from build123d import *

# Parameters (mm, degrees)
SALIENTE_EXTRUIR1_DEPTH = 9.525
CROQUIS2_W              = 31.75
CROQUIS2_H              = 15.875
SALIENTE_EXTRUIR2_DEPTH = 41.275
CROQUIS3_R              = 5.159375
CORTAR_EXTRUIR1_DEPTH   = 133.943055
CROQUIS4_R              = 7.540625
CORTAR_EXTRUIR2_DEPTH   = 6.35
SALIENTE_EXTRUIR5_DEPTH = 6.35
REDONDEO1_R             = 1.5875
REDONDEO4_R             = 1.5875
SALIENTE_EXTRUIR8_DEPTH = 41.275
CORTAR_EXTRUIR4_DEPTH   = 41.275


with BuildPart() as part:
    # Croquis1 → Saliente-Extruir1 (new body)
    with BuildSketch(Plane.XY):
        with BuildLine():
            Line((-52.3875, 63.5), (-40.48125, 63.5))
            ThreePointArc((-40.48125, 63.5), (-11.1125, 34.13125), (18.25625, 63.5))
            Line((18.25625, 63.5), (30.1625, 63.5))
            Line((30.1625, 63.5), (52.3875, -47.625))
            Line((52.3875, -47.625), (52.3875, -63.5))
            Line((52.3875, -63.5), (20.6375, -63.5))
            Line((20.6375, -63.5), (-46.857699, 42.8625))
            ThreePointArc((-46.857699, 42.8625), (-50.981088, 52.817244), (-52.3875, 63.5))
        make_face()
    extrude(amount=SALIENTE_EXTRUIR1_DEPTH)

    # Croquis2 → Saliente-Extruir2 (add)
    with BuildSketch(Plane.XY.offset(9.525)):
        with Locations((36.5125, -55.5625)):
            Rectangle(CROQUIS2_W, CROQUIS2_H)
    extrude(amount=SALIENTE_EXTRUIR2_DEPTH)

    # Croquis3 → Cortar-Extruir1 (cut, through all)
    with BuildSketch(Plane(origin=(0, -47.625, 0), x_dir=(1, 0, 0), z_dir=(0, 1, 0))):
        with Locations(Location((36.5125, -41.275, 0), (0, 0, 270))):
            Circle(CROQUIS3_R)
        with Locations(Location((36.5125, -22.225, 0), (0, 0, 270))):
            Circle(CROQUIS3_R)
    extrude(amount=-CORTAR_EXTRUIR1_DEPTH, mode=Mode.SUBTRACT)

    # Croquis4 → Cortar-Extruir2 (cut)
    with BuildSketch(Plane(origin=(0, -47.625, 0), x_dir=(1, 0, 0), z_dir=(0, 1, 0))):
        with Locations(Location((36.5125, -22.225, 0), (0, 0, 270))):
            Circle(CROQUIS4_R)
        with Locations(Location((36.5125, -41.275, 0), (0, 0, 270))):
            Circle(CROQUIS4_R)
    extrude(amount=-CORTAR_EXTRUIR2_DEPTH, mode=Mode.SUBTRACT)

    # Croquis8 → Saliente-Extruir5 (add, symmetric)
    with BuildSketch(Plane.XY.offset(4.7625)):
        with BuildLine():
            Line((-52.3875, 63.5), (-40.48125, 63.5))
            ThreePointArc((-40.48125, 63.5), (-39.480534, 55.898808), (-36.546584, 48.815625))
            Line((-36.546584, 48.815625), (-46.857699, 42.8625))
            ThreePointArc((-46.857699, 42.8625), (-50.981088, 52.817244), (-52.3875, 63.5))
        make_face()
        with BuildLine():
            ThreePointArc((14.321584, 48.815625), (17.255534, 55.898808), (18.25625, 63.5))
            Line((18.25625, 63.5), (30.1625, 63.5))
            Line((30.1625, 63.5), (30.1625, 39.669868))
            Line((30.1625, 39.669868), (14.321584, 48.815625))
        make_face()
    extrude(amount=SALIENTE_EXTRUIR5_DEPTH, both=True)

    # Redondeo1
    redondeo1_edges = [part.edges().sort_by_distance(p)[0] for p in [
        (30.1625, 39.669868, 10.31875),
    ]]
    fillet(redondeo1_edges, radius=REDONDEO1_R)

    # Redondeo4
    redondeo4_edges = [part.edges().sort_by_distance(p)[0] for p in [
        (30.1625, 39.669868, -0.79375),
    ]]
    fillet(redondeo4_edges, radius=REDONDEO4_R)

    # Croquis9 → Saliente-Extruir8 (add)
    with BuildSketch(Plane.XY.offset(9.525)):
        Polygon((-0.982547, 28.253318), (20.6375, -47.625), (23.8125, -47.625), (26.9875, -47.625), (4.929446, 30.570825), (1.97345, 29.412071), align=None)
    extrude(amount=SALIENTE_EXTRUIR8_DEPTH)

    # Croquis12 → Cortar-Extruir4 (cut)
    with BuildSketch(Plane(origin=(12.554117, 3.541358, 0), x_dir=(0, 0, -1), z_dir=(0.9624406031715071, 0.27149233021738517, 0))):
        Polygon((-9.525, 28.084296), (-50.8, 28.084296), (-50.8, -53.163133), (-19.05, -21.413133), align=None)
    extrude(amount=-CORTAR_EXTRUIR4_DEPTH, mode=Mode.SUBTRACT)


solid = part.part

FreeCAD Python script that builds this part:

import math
import FreeCAD as App
import Part
import Sketcher
from FreeCAD import Vector
Q = App.Units.Quantity


def edges_at(feature, points):
    """Names of the edges that pass closest to the given points."""
    edges = feature.Shape.Edges
    near = lambda p: min(range(len(edges)), key=lambda i: edges[i].distToShape(Part.Vertex(*p))[0])
    return sorted({f"Edge{near(p) + 1}" for p in points})


def add_polygon(sketch, points):
    """Adds a closed chain of lines whose ends are joined by coincident constraints."""
    first, n = sketch.GeometryCount, len(points)
    for a, b in zip(points, points[1:] + points[:1]):
        sketch.addGeometry(Part.LineSegment(App.Vector(*a, 0), App.Vector(*b, 0)), False)
    for i in range(n):
        sketch.addConstraint(Sketcher.Constraint("Coincident", first + i, 2, first + (i + 1) % n, 1))

doc = App.newDocument("Part")
params = doc.addObject("Spreadsheet::Sheet", "Params")
for row, (alias, value) in enumerate([
    ("sketch1_radius", "1.15625 in"),
    ("sketch1_width", "1.25 in"),
    ("sketch1_width2", "0.46875 in"),
    ("sketch1_height", "0.625 in"),
    ("pad1_length", "0.375 in"),
    ("sketch2_width", "1.25 in"),
    ("sketch2_height", "0.625 in"),
    ("pad2_length", "1.625 in"),
    ("sketch3_diameter", "0.40625 in"),
    ("sketch4_diameter", "0.59375 in"),
    ("pocket2_length", "0.25 in"),
    ("sketch5_width", "0.46875 in"),
    ("sketch5_length", "0.46875 in"),
    ("pad3_length", "0.5 in"),
    ("fillet_radius", "0.0625 in"),
    ("fillet2_radius", "0.0625 in"),
    ("sketch6_width", "0.25 in"),
    ("sketch6_length", "0.125 in"),
    ("pad4_length", "1.625 in"),
    ("sketch7_width", "1.625 in"),
    ("pocket3_length", "1.625 in"),
], start=1):
    params.set(f"A{row}", alias)
    params.set(f"B{row}", "=" + value)
    params.setAlias(f"B{row}", alias)

body = doc.addObject("PartDesign::Body", "Body")

sketch1 = doc.addObject("Sketcher::SketchObject", "Sketch")
body.addObject(sketch1)
sketch1.AttachmentSupport = (doc.XY_Plane, [""])
sketch1.MapMode = "FlatFace"
sketch1.addGeometry(Part.LineSegment(Vector(-40, 64, 0), Vector(-52, 64, 0)), False)
sketch1.addGeometry(Part.ArcOfCircle(Part.Circle(Vector(-11, 64, 0), Vector(0, 0, 1), 41), math.radians(-180), math.radians(-150)), False)
sketch1.addGeometry(Part.LineSegment(Vector(-47, 43, 0), Vector(21, -64, 0)), False)
sketch1.addGeometry(Part.LineSegment(Vector(21, -64, 0), Vector(52, -64, 0)), False)
sketch1.addGeometry(Part.LineSegment(Vector(52, -64, 0), Vector(52, -48, 0)), False)
sketch1.addGeometry(Part.LineSegment(Vector(52, -48, 0), Vector(30, 64, 0)), False)
sketch1.addGeometry(Part.LineSegment(Vector(30, 64, 0), Vector(18, 64, 0)), False)
sketch1.addGeometry(Part.ArcOfCircle(Part.Circle(Vector(-11, 64, 0), Vector(0, 0, 1), 29), math.radians(180), math.radians(360)), False)
sketch1.addConstraint(Sketcher.Constraint("Coincident", 0, 2, 1, 1))
sketch1.addConstraint(Sketcher.Constraint("Coincident", 1, 2, 2, 1))
sketch1.addConstraint(Sketcher.Constraint("Coincident", 2, 2, 3, 1))
sketch1.addConstraint(Sketcher.Constraint("Coincident", 3, 2, 4, 1))
sketch1.addConstraint(Sketcher.Constraint("Coincident", 4, 2, 5, 1))
sketch1.addConstraint(Sketcher.Constraint("Coincident", 5, 2, 6, 1))
sketch1.addConstraint(Sketcher.Constraint("Coincident", 6, 2, 7, 2))
sketch1.addConstraint(Sketcher.Constraint("Coincident", 7, 1, 0, 1))
sketch1.addConstraint(Sketcher.Constraint("Horizontal", 0))
sketch1.addConstraint(Sketcher.Constraint("Horizontal", 3))
sketch1.addConstraint(Sketcher.Constraint("Vertical", 4))
sketch1.addConstraint(Sketcher.Constraint("Horizontal", 6))
sketch1.addConstraint(Sketcher.Constraint("Symmetric", 0, 2, 3, 2, -1, 1))
sketch1.addConstraint(Sketcher.Constraint("Horizontal", 7, 3, 0, 2))
sketch1.addConstraint(Sketcher.Constraint("Horizontal", 0, 2, 5, 2))
sketch1.addConstraint(Sketcher.Constraint("Equal", 0, 6))
sketch1.addConstraint(Sketcher.Constraint("Radius", 7, Q("1.15625 in")))
sketch1.addConstraint(Sketcher.Constraint("DistanceY", 2, 2, 1, 3, Q("5.0000002 in")))
sketch1.addConstraint(Sketcher.Constraint("DistanceY", 2, 2, 7, 3, Q("5 in")))
sketch1.addConstraint(Sketcher.Constraint("DistanceX", 3, 1, 3, 2, Q("1.25 in")))
sketch1.addConstraint(Sketcher.Constraint("DistanceX", 7, 3, 3, 2, Q("2.5 in")))
sketch1.addConstraint(Sketcher.Constraint("DistanceX", 0, 2, 0, 1, Q("0.46875 in")))
sketch1.addConstraint(Sketcher.Constraint("DistanceY", 4, 1, 4, 2, Q("0.625 in")))
sketch1.addConstraint(Sketcher.Constraint("DistanceY", -1, 1, 1, 2, Q("1.6875 in")))
sketch1.addConstraint(Sketcher.Constraint("Radius", 1, 41.27502))
sketch1.setExpression("Constraints[16]", "Params.sketch1_radius")
sketch1.setExpression("Constraints[19]", "Params.sketch1_width")
sketch1.setExpression("Constraints[21]", "Params.sketch1_width2")
sketch1.setExpression("Constraints[22]", "Params.sketch1_height")
pad1 = doc.addObject("PartDesign::Pad", "Pad")
body.addObject(pad1)
pad1.Profile = sketch1
pad1.setExpression("Length", "Params.pad1_length")

sketch2 = doc.addObject("Sketcher::SketchObject", "Sketch001")
body.addObject(sketch2)
sketch2.AttachmentSupport = (doc.XY_Plane, [""])
sketch2.MapMode = "FlatFace"
sketch2.AttachmentOffset = App.Placement(Vector(0, 0, 0.375 * 25.4), App.Rotation())
add_polygon(sketch2, [(21, -48), (21, -64), (52, -64), (52, -48)])
sketch2.addConstraint(Sketcher.Constraint("Vertical", 0))
sketch2.addConstraint(Sketcher.Constraint("Horizontal", 1))
sketch2.addConstraint(Sketcher.Constraint("Vertical", 2))
sketch2.addConstraint(Sketcher.Constraint("Horizontal", 3))
sketch2.addConstraint(Sketcher.Constraint("DistanceX", 1, 1, 1, 2, Q("1.25 in")))
sketch2.addConstraint(Sketcher.Constraint("DistanceY", 0, 2, -1, 1, Q("2.5 in")))
sketch2.addConstraint(Sketcher.Constraint("DistanceY", 0, 2, 0, 1, Q("0.625 in")))
sketch2.addConstraint(Sketcher.Constraint("DistanceX", -1, 1, 0, 2, Q("0.8125 in")))
sketch2.setExpression("Constraints[8]", "Params.sketch2_width")
sketch2.setExpression("Constraints[10]", "Params.sketch2_height")
pad2 = doc.addObject("PartDesign::Pad", "Pad001")
body.addObject(pad2)
pad2.Profile = sketch2
pad2.setExpression("Length", "Params.pad2_length")

sketch3 = doc.addObject("Sketcher::SketchObject", "Sketch002")
body.addObject(sketch3)
sketch3.AttachmentSupport = (doc.XZ_Plane, [""])
sketch3.MapMode = "FlatFace"
sketch3.AttachmentOffset = App.Placement(Vector(0, 0, 1.875 * 25.4), App.Rotation())
sketch3.addGeometry(Part.Circle(Vector(37, 41, 0), Vector(0, 0, 1), 5), False)
sketch3.addGeometry(Part.Circle(Vector(37, 22, 0), Vector(0, 0, 1), 5), False)
sketch3.addConstraint(Sketcher.Constraint("Equal", 0, 1))
sketch3.addConstraint(Sketcher.Constraint("Vertical", 0, 3, 1, 3))
sketch3.addConstraint(Sketcher.Constraint("Diameter", 0, Q("0.40625 in")))
sketch3.addConstraint(Sketcher.Constraint("DistanceY", 1, 3, 0, 3, Q("0.75 in")))
sketch3.addConstraint(Sketcher.Constraint("DistanceX", -1, 1, 0, 3, Q("1.4375 in")))
sketch3.addConstraint(Sketcher.Constraint("DistanceY", -1, 1, 0, 3, Q("1.625 in")))
sketch3.setExpression("Constraints[2]", "Params.sketch3_diameter")
pocket1 = doc.addObject("PartDesign::Pocket", "Pocket")
body.addObject(pocket1)
pocket1.Profile = sketch3
pocket1.Type = "ThroughAll"
pocket1.Reversed = True

sketch4 = doc.addObject("Sketcher::SketchObject", "Sketch003")
body.addObject(sketch4)
sketch4.AttachmentSupport = (doc.XZ_Plane, [""])
sketch4.MapMode = "FlatFace"
sketch4.AttachmentOffset = App.Placement(Vector(0, 0, 1.875 * 25.4), App.Rotation())
sketch4.addGeometry(Part.Circle(Vector(37, 22, 0), Vector(0, 0, 1), 8), False)
sketch4.addGeometry(Part.Circle(Vector(37, 41, 0), Vector(0, 0, 1), 8), False)
sketch4.addConstraint(Sketcher.Constraint("Equal", 0, 1))
sketch4.addConstraint(Sketcher.Constraint("Vertical", 0, 3, 1, 3))
sketch4.addConstraint(Sketcher.Constraint("Diameter", 0, Q("0.59375 in")))
sketch4.addConstraint(Sketcher.Constraint("DistanceY", 0, 3, 1, 3, Q("0.75 in")))
sketch4.addConstraint(Sketcher.Constraint("DistanceX", -1, 1, 0, 3, Q("1.4375 in")))
sketch4.addConstraint(Sketcher.Constraint("DistanceY", -1, 1, 0, 3, Q("0.875 in")))
sketch4.setExpression("Constraints[2]", "Params.sketch4_diameter")
pocket2 = doc.addObject("PartDesign::Pocket", "Pocket001")
body.addObject(pocket2)
pocket2.Profile = sketch4
pocket2.setExpression("Length", "Params.pocket2_length")
pocket2.Reversed = True

sketch5 = doc.addObject("Sketcher::SketchObject", "Sketch004")
body.addObject(sketch5)
sketch5.AttachmentSupport = (doc.XY_Plane, [""])
sketch5.MapMode = "FlatFace"
sketch5.AttachmentOffset = App.Placement(Vector(0, 0, 0.1875 * 25.4), App.Rotation())
sketch5.addGeometry(Part.LineSegment(Vector(-40, 64, 0), Vector(-52, 64, 0)), False)
sketch5.addGeometry(Part.ArcOfCircle(Part.Circle(Vector(-11, 64, 0), Vector(0, 0, 1), 41), math.radians(-180), math.radians(-150)), False)
sketch5.addGeometry(Part.LineSegment(Vector(-47, 43, 0), Vector(-37, 49, 0)), False)
sketch5.addGeometry(Part.ArcOfCircle(Part.Circle(Vector(-11, 64, 0), Vector(0, 0, 1), 29), math.radians(-180), math.radians(-150)), False)
sketch5.addGeometry(Part.ArcOfCircle(Part.Circle(Vector(-11, 64, 0), Vector(0, 0, 1), 29), math.radians(-30), math.radians(0)), False)
sketch5.addGeometry(Part.LineSegment(Vector(14, 49, 0), Vector(30, 40, 0)), False)
sketch5.addGeometry(Part.LineSegment(Vector(30, 40, 0), Vector(30, 64, 0)), False)
sketch5.addGeometry(Part.LineSegment(Vector(30, 64, 0), Vector(18, 64, 0)), False)
sketch5.addConstraint(Sketcher.Constraint("Coincident", 0, 2, 1, 1))
sketch5.addConstraint(Sketcher.Constraint("Coincident", 1, 2, 2, 1))
sketch5.addConstraint(Sketcher.Constraint("Coincident", 2, 2, 3, 2))
sketch5.addConstraint(Sketcher.Constraint("Coincident", 3, 1, 0, 1))
sketch5.addConstraint(Sketcher.Constraint("Coincident", 4, 1, 5, 1))
sketch5.addConstraint(Sketcher.Constraint("Coincident", 5, 2, 6, 1))
sketch5.addConstraint(Sketcher.Constraint("Coincident", 6, 2, 7, 1))
sketch5.addConstraint(Sketcher.Constraint("Coincident", 7, 2, 4, 2))
sketch5.addConstraint(Sketcher.Constraint("Horizontal", 0))
sketch5.addConstraint(Sketcher.Constraint("Vertical", 6))
sketch5.addConstraint(Sketcher.Constraint("Horizontal", 7))
sketch5.addConstraint(Sketcher.Constraint("Equal", 3, 4))
sketch5.addConstraint(Sketcher.Constraint("Horizontal", 3, 3, 4, 3))
sketch5.addConstraint(Sketcher.Constraint("Horizontal", 4, 3, 0, 2))
sketch5.addConstraint(Sketcher.Constraint("Horizontal", 2, 2, 4, 1))
sketch5.addConstraint(Sketcher.Constraint("Horizontal", 3, 1, 6, 2))
sketch5.addConstraint(Sketcher.Constraint("Equal", 0, 7))
sketch5.addConstraint(Sketcher.Constraint("Angle", 2, Q("30 deg")))
sketch5.addConstraint(Sketcher.Constraint("Angle", 5, Q("-30 deg")))
sketch5.addConstraint(Sketcher.Constraint("DistanceY", -1, 1, 1, 3, Q("2.5000002 in")))
sketch5.addConstraint(Sketcher.Constraint("DistanceY", -1, 1, 3, 3, Q("2.5 in")))
sketch5.addConstraint(Sketcher.Constraint("DistanceX", 0, 2, 0, 1, Q("0.46875 in")))
sketch5.addConstraint(Sketcher.Constraint("Distance", 2, Q("0.46875 in")))
sketch5.addConstraint(Sketcher.Constraint("DistanceX", 0, 2, -1, 1, Q("2.0625 in")))
sketch5.addConstraint(Sketcher.Constraint("DistanceY", -1, 1, 1, 2, Q("1.6875 in")))
sketch5.addConstraint(Sketcher.Constraint("DistanceX", -1, 1, 5, 2, Q("1.1875 in")))
sketch5.addConstraint(Sketcher.Constraint("Radius", 1, 41.27502))
sketch5.setExpression("Constraints[21]", "Params.sketch5_width")
sketch5.setExpression("Constraints[22]", "Params.sketch5_length")
pad3 = doc.addObject("PartDesign::Pad", "Pad002")
body.addObject(pad3)
pad3.Profile = sketch5
pad3.setExpression("Length", "Params.pad3_length")
pad3.Midplane = True
doc.recompute()

fillet = doc.addObject("PartDesign::Fillet", "Fillet")
body.addObject(fillet)
fillet.Base = (pad3, edges_at(pad3, [(30.163, 39.67, 10.319)]))
fillet.setExpression("Radius", "Params.fillet_radius")
doc.recompute()

fillet2 = doc.addObject("PartDesign::Fillet", "Fillet001")
body.addObject(fillet2)
fillet2.Base = (fillet, edges_at(fillet, [(30.163, 39.67, -0.794)]))
fillet2.setExpression("Radius", "Params.fillet2_radius")

sketch6 = doc.addObject("Sketcher::SketchObject", "Sketch005")
body.addObject(sketch6)
sketch6.AttachmentSupport = (doc.XY_Plane, [""])
sketch6.MapMode = "FlatFace"
sketch6.AttachmentOffset = App.Placement(Vector(0, 0, 0.375 * 25.4), App.Rotation())
add_polygon(sketch6, [(-1, 28.3), (20.6, -47.6), (27, -47.6), (4.9, 30.6), (2, 29.4)])
sketch6.addConstraint(Sketcher.Constraint("Horizontal", 1))
sketch6.addConstraint(Sketcher.Constraint("Parallel", 3, 4))
sketch6.addConstraint(Sketcher.Constraint("Equal", 3, 4))
sketch6.addConstraint(Sketcher.Constraint("DistanceX", 1, 1, 1, 2, Q("0.25 in")))
sketch6.addConstraint(Sketcher.Constraint("Distance", 3, Q("0.125 in")))
sketch6.addConstraint(Sketcher.Constraint("DistanceX", -1, 1, 0, 2, Q("0.8125 in")))
sketch6.addConstraint(Sketcher.Constraint("DistanceY", 0, 2, -1, 1, Q("1.875 in")))
sketch6.addConstraint(Sketcher.Constraint("Distance", 2, 81.247429))
sketch6.addConstraint(Sketcher.Constraint("DistanceX", -1, 1, 3, 2, 1.97345))
sketch6.addConstraint(Sketcher.Constraint("DistanceY", -1, 1, 3, 2, 29.412071))
sketch6.setExpression("Constraints[8]", "Params.sketch6_width")
sketch6.setExpression("Constraints[9]", "Params.sketch6_length")
pad4 = doc.addObject("PartDesign::Pad", "Pad003")
body.addObject(pad4)
pad4.Profile = sketch6
pad4.setExpression("Length", "Params.pad4_length")

sketch7 = doc.addObject("Sketcher::SketchObject", "Sketch006")
body.addObject(sketch7)
sketch7.Placement = App.Placement(Vector(12.554117, 3.541358, 0), App.Rotation(Vector(0, 0, -1), Vector(-0.27149233, 0.962440603, 0), Vector(0.962440603, 0.27149233, 0), "ZXY"))
add_polygon(sketch7, [(-10, 28), (-51, 28), (-51, -53), (-19, -21)])
sketch7.addConstraint(Sketcher.Constraint("Horizontal", 0))
sketch7.addConstraint(Sketcher.Constraint("Vertical", 1))
sketch7.addConstraint(Sketcher.Constraint("DistanceX", 0, 2, -1, 1, Q("2 in")))
sketch7.addConstraint(Sketcher.Constraint("Angle", 2, Q("45 deg")))
sketch7.addConstraint(Sketcher.Constraint("DistanceX", 0, 2, 0, 1, Q("1.625 in")))
sketch7.addConstraint(Sketcher.Constraint("DistanceX", 2, 2, -1, 1, Q("0.75 in")))
sketch7.addConstraint(Sketcher.Constraint("DistanceY", 1, 2, 1, 1, 81.247429))
sketch7.addConstraint(Sketcher.Constraint("DistanceY", -1, 1, 0, 2, 28.084296))
sketch7.setExpression("Constraints[8]", "Params.sketch7_width")
pocket3 = doc.addObject("PartDesign::Pocket", "Pocket002")
body.addObject(pocket3)
pocket3.Profile = sketch7
pocket3.setExpression("Length", "Params.pocket3_length")

doc.recompute()
